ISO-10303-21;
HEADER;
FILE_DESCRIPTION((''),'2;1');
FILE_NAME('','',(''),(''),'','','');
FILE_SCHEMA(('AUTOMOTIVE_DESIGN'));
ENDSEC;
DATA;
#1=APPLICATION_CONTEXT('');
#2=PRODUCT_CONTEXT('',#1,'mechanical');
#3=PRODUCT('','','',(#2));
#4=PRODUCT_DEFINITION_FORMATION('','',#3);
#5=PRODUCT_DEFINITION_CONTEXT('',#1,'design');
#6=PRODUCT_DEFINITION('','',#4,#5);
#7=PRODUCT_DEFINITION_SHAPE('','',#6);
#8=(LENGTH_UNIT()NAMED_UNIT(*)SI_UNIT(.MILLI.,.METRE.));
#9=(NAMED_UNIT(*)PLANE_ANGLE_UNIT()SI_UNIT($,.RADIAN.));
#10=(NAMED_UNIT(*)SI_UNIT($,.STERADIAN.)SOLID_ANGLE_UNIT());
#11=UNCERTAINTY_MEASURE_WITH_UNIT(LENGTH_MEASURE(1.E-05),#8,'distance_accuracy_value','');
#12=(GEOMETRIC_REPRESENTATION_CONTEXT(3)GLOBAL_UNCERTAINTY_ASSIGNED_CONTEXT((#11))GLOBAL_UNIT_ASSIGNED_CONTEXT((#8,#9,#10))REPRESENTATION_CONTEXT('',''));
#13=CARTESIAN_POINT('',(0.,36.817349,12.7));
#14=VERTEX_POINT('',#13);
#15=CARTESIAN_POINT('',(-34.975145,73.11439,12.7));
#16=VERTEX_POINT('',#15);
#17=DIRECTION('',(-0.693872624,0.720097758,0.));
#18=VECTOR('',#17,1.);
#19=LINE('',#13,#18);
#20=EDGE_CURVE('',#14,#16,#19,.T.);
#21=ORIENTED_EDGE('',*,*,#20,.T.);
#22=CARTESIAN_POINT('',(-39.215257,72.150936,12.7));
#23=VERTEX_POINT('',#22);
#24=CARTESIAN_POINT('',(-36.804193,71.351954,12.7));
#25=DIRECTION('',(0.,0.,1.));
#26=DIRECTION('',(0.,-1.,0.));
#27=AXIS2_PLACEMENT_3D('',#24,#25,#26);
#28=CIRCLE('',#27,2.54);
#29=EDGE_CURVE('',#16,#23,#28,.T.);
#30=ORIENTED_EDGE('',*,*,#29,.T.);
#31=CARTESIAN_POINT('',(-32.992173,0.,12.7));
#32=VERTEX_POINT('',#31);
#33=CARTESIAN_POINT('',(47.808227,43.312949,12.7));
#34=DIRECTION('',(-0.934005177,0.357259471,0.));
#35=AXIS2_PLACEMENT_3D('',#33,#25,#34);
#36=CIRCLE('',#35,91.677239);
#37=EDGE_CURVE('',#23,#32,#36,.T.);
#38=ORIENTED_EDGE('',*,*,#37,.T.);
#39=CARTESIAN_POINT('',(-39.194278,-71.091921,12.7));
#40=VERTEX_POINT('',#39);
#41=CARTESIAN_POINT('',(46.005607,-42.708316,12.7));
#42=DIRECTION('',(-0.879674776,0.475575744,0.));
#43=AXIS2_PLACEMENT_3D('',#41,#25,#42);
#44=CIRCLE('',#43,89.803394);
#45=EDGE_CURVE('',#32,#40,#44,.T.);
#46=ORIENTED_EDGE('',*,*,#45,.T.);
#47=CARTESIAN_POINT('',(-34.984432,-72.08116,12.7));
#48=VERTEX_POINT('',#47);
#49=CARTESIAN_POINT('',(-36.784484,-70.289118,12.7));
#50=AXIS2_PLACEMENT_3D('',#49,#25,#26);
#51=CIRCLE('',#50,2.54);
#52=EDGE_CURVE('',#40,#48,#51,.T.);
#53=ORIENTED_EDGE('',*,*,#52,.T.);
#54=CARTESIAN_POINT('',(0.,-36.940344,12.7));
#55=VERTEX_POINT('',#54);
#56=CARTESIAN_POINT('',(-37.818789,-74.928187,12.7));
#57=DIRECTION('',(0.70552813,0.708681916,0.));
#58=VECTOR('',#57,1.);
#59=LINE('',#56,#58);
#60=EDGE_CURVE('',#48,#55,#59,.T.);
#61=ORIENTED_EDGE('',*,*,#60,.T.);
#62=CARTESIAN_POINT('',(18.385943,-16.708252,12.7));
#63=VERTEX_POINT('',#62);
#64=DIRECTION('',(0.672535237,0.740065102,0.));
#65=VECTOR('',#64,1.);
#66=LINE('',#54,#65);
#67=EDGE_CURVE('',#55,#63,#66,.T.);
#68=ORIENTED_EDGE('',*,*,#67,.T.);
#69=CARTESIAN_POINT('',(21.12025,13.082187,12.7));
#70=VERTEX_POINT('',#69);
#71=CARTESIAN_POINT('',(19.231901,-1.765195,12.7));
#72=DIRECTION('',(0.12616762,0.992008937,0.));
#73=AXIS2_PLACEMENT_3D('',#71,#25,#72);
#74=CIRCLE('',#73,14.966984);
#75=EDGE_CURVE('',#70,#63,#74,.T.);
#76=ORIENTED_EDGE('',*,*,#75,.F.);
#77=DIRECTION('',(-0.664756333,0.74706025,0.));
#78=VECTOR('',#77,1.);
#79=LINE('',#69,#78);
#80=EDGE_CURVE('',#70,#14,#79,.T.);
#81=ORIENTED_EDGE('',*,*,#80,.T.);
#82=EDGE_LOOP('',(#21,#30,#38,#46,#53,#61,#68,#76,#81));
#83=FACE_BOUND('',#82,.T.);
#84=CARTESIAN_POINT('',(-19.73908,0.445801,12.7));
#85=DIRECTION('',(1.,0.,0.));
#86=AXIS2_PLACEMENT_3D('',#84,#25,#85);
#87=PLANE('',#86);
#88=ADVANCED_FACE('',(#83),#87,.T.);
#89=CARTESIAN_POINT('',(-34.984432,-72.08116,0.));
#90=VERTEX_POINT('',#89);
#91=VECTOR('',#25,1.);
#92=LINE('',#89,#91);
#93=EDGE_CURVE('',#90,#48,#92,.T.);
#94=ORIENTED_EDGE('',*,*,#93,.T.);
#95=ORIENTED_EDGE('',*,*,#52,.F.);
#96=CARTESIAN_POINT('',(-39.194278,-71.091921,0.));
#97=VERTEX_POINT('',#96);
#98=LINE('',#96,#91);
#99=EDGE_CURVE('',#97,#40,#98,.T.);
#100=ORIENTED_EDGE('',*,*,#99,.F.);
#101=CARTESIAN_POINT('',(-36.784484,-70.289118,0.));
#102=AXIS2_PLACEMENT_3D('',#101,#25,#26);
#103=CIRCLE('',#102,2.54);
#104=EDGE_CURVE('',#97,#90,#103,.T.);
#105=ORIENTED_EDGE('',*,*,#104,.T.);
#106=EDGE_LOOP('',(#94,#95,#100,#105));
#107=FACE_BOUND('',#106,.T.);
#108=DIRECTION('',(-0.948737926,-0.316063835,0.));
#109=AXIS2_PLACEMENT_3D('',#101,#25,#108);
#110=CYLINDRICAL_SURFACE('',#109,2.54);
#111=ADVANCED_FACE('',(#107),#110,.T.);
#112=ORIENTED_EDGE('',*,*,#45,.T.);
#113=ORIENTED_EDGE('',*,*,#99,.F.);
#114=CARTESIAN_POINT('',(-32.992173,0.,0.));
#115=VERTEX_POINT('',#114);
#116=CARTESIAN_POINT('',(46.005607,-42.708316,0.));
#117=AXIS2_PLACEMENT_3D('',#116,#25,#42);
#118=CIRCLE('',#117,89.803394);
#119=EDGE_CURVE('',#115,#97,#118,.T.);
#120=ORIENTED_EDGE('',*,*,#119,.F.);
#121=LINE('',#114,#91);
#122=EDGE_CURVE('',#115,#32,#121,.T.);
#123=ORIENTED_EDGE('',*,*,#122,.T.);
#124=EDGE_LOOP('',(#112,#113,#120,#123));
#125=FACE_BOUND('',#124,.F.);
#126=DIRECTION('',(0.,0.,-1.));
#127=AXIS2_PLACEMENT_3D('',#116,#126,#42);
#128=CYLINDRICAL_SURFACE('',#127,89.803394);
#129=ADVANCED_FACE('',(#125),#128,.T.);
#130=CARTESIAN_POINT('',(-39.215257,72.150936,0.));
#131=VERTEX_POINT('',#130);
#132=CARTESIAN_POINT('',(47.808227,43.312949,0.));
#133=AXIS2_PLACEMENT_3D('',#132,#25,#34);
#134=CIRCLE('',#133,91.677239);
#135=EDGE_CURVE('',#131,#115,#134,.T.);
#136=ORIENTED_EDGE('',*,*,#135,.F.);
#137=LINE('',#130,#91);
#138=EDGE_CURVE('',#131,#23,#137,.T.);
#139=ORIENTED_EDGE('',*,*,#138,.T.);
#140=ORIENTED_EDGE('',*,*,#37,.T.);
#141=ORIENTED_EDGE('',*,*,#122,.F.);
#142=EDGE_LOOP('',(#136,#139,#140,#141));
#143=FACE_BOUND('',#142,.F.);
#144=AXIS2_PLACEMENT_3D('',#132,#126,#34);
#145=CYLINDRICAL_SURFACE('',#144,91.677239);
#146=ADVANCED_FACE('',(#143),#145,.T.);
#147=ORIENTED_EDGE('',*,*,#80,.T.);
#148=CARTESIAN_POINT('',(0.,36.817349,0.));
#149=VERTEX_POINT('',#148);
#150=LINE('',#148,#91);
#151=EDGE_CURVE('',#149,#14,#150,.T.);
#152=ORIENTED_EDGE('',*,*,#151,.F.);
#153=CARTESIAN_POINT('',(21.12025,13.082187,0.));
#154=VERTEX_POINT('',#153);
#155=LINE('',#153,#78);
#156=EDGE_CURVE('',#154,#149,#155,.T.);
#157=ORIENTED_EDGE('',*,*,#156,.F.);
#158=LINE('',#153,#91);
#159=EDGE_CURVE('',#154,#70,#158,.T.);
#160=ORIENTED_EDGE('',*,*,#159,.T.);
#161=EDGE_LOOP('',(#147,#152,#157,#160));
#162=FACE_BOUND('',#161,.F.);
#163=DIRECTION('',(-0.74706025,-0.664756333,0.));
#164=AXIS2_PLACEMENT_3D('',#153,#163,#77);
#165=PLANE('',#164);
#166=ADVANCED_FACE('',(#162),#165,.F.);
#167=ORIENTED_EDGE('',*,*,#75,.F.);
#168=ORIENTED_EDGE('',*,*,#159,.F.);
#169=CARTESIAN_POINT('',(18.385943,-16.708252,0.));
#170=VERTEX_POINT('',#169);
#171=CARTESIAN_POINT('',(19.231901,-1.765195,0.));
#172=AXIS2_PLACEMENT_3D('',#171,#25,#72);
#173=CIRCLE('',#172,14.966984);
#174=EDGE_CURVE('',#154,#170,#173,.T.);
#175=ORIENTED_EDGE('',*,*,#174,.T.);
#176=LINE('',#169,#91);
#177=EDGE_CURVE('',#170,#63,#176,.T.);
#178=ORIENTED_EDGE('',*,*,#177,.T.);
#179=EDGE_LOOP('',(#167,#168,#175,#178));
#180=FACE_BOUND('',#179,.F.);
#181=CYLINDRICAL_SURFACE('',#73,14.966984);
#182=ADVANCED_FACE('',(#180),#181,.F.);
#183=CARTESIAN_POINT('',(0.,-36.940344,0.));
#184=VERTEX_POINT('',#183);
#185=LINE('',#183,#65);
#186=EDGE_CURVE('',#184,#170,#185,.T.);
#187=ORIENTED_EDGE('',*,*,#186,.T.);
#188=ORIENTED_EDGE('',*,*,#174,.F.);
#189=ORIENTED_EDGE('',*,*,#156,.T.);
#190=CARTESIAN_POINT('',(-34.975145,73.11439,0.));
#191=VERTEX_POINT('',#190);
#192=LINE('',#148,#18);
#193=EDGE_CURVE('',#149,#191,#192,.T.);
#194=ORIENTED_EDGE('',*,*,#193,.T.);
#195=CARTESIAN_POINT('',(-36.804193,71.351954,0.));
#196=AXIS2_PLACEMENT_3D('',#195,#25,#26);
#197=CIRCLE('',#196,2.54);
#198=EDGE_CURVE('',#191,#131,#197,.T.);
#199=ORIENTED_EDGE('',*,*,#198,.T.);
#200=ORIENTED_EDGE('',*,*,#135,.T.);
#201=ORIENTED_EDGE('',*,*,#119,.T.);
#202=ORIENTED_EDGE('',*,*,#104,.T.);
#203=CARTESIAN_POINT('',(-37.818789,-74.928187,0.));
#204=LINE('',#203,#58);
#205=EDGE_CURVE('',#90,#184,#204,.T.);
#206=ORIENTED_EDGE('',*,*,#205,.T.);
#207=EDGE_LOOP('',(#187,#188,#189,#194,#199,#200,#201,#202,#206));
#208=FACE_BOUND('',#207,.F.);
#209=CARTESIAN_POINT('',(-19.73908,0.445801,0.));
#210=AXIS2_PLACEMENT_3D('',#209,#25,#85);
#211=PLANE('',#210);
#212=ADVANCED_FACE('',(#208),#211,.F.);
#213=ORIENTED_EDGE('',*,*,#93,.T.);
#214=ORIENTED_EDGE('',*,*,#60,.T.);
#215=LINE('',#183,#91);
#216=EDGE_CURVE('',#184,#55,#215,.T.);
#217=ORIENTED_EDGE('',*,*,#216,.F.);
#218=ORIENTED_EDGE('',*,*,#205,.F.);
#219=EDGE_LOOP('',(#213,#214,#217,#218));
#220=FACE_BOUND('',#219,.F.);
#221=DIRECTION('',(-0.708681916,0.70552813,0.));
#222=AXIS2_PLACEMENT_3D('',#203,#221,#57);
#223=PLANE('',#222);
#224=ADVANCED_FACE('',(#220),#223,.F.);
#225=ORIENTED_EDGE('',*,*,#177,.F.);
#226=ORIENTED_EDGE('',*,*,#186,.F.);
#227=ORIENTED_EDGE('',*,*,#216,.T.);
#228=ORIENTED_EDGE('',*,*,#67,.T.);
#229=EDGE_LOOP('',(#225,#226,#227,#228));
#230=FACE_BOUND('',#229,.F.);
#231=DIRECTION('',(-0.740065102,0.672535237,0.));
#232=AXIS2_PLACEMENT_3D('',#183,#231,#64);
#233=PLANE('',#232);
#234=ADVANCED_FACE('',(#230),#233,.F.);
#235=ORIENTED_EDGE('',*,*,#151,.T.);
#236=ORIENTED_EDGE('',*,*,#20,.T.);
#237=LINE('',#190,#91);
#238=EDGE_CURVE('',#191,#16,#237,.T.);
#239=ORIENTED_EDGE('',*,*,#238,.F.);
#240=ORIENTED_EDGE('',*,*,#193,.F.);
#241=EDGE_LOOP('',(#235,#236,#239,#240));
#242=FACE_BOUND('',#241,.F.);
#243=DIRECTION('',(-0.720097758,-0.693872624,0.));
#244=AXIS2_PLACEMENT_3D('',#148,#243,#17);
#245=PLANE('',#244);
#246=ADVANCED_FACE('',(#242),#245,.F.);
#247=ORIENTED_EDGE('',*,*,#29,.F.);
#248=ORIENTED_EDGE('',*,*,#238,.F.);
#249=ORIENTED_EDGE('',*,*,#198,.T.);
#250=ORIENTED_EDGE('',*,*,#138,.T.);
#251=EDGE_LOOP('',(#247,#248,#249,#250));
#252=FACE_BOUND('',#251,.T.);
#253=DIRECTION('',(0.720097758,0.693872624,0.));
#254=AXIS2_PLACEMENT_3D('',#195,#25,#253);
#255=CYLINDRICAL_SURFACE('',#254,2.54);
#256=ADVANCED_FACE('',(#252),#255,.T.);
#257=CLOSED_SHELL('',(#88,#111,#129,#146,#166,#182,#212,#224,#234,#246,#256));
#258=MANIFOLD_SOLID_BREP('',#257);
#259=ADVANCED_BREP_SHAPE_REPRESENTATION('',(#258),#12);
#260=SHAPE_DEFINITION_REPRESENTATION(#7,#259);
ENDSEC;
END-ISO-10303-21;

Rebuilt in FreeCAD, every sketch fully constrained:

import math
import FreeCAD as App
import Part
import Sketcher

V = App.Vector
Q = App.Units.Quantity


def edges_at(feature, points):
    """Names of the edges that pass closest to the given points."""
    edges = feature.Shape.Edges
    near = lambda p: min(range(len(edges)), key=lambda i: edges[i].distToShape(Part.Vertex(*p))[0])
    return sorted({f"Edge{near(p) + 1}" for p in points})

doc = App.newDocument("Part")
body = doc.addObject("PartDesign::Body", "Body")

sketch1 = doc.addObject("Sketcher::SketchObject", "Sketch")
body.addObject(sketch1)
sketch1.AttachmentSupport = (doc.XY_Plane, [""])
sketch1.MapMode = "FlatFace"
sketch1.addGeometry(Part.ArcOfCircle(Part.Circle(V(-0.000002, 0, 0), V(0, 0, 1), 24.843685), math.radians(-42.263034), math.radians(31.774667)), False)
sketch1.addGeometry(Part.LineSegment(V(21.12025, 13.082187, 0), V(0, 36.817349, 0)), False)
sketch1.addGeometry(Part.LineSegment(V(0, 36.817349, 0), V(-37.818789, 76.065511, 0)), False)
sketch1.addGeometry(Part.ArcOfCircle(Part.Circle(V(47.808227, 43.312949, 0), V(0, 0, 1), 91.677239), math.radians(159.068014), math.radians(208.193476)), False)
sketch1.addGeometry(Part.ArcOfCircle(Part.Circle(V(46.005607, -42.708316, 0), V(0, 0, 1), 89.803394), math.radians(151.603157), math.radians(201.025434)), False)
sketch1.addGeometry(Part.LineSegment(V(-37.818789, -74.928187, 0), V(0, -36.940344, 0)), False)
sketch1.addGeometry(Part.LineSegment(V(0, -36.940344, 0), V(18.385943, -16.708252, 0)), False)
sketch1.addConstraint(Sketcher.Constraint("Coincident", 0, 2, 1, 1))
sketch1.addConstraint(Sketcher.Constraint("Coincident", 1, 2, 2, 1))
sketch1.addConstraint(Sketcher.Constraint("Coincident", 2, 2, 3, 1))
sketch1.addConstraint(Sketcher.Constraint("Coincident", 3, 2, 4, 1))
sketch1.addConstraint(Sketcher.Constraint("Coincident", 4, 2, 5, 1))
sketch1.addConstraint(Sketcher.Constraint("Coincident", 5, 2, 6, 1))
sketch1.addConstraint(Sketcher.Constraint("Tangent", 6, 2, 0, 1))
sketch1.addConstraint(Sketcher.Constraint("Coincident", 0, 3, -1, 1))
sketch1.addConstraint(Sketcher.Constraint("PointOnObject", 1, 2, -2))
sketch1.addConstraint(Sketcher.Constraint("PointOnObject", 3, 2, -1))
sketch1.addConstraint(Sketcher.Constraint("PointOnObject", 5, 2, -2))
sketch1.addConstraint(Sketcher.Constraint("Vertical", 2, 2, 4, 2))
sketch1.addConstraint(Sketcher.Constraint("Radius", 3, Q("91.677239 mm")))
sketch1.addConstraint(Sketcher.Constraint("Radius", 0, Q("24.843685 mm")))
sketch1.addConstraint(Sketcher.Constraint("Radius", 4, Q("89.803394 mm")))
sketch1.addConstraint(Sketcher.Constraint("DistanceY", 1, 2, 3, 3, Q("6.4956 mm")))
sketch1.addConstraint(Sketcher.Constraint("Distance", 6, Q("27.33826 mm")))
sketch1.addConstraint(Sketcher.Constraint("DistanceY", -1, 1, 3, 3, Q("43.312949 mm")))
sketch1.addConstraint(Sketcher.Constraint("DistanceX", -1, 1, 0, 2, Q("21.12025 mm")))
sketch1.addConstraint(Sketcher.Constraint("DistanceX", 2, 2, -1, 1, Q("37.818789 mm")))
sketch1.addConstraint(Sketcher.Constraint("DistanceY", -1, 1, 2, 2, Q("76.065511 mm")))
sketch1.addConstraint(Sketcher.Constraint("DistanceX", 0, 3, 4, 3, Q("46.00561 mm")))
pad1 = doc.addObject("PartDesign::Pad", "Pad")
body.addObject(pad1)
pad1.Profile = sketch1
pad1.Length = Q("0.5 in")
doc.recompute()

fillet = doc.addObject("PartDesign::Fillet", "Fillet")
body.addObject(fillet)
fillet.Base = (pad1, edges_at(pad1, [(-37.819, -74.928, 6.35), (-37.819, 76.066, 6.35)]))
fillet.Radius = Q("0.1 in")

sketch2 = doc.addObject("Sketcher::SketchObject", "Sketch001")
body.addObject(sketch2)
sketch2.AttachmentSupport = (doc.XY_Plane, [""])
sketch2.MapMode = "FlatFace"
sketch2.AttachmentOffset = App.Placement(V(0, 0, 0.5 * 25.4), App.Rotation())
sketch2.addGeometry(Part.ArcOfCircle(Part.Circle(V(-0.000002, 0, 0), V(0, 0, 1), 24.843685), math.radians(-42.263034), math.radians(31.774667)), False)
sketch2.addGeometry(Part.ArcOfCircle(Part.Circle(V(19.231901, -1.765195, 0), V(0, 0, 1), 14.966984), math.radians(82.751811), math.radians(266.759823)), False)
sketch2.addConstraint(Sketcher.Constraint("Coincident", 0, 1, 1, 2))
sketch2.addConstraint(Sketcher.Constraint("Coincident", 1, 1, 0, 2))
sketch2.addConstraint(Sketcher.Constraint("Coincident", 0, 3, -1, 1))
sketch2.addConstraint(Sketcher.Constraint("Radius", 0, Q("24.843685 mm")))
sketch2.addConstraint(Sketcher.Constraint("Radius", 1, Q("14.966984 mm")))
sketch2.addConstraint(Sketcher.Constraint("DistanceX", -1, 1, 1, 3, Q("19.231901 mm")))
sketch2.addConstraint(Sketcher.Constraint("DistanceY", 0, 1, -1, 1, Q("16.708252 mm")))
pocket1 = doc.addObject("PartDesign::Pocket", "Pocket")
body.addObject(pocket1)
pocket1.Profile = sketch2
pocket1.Length = Q("1 in")

doc.recompute()
